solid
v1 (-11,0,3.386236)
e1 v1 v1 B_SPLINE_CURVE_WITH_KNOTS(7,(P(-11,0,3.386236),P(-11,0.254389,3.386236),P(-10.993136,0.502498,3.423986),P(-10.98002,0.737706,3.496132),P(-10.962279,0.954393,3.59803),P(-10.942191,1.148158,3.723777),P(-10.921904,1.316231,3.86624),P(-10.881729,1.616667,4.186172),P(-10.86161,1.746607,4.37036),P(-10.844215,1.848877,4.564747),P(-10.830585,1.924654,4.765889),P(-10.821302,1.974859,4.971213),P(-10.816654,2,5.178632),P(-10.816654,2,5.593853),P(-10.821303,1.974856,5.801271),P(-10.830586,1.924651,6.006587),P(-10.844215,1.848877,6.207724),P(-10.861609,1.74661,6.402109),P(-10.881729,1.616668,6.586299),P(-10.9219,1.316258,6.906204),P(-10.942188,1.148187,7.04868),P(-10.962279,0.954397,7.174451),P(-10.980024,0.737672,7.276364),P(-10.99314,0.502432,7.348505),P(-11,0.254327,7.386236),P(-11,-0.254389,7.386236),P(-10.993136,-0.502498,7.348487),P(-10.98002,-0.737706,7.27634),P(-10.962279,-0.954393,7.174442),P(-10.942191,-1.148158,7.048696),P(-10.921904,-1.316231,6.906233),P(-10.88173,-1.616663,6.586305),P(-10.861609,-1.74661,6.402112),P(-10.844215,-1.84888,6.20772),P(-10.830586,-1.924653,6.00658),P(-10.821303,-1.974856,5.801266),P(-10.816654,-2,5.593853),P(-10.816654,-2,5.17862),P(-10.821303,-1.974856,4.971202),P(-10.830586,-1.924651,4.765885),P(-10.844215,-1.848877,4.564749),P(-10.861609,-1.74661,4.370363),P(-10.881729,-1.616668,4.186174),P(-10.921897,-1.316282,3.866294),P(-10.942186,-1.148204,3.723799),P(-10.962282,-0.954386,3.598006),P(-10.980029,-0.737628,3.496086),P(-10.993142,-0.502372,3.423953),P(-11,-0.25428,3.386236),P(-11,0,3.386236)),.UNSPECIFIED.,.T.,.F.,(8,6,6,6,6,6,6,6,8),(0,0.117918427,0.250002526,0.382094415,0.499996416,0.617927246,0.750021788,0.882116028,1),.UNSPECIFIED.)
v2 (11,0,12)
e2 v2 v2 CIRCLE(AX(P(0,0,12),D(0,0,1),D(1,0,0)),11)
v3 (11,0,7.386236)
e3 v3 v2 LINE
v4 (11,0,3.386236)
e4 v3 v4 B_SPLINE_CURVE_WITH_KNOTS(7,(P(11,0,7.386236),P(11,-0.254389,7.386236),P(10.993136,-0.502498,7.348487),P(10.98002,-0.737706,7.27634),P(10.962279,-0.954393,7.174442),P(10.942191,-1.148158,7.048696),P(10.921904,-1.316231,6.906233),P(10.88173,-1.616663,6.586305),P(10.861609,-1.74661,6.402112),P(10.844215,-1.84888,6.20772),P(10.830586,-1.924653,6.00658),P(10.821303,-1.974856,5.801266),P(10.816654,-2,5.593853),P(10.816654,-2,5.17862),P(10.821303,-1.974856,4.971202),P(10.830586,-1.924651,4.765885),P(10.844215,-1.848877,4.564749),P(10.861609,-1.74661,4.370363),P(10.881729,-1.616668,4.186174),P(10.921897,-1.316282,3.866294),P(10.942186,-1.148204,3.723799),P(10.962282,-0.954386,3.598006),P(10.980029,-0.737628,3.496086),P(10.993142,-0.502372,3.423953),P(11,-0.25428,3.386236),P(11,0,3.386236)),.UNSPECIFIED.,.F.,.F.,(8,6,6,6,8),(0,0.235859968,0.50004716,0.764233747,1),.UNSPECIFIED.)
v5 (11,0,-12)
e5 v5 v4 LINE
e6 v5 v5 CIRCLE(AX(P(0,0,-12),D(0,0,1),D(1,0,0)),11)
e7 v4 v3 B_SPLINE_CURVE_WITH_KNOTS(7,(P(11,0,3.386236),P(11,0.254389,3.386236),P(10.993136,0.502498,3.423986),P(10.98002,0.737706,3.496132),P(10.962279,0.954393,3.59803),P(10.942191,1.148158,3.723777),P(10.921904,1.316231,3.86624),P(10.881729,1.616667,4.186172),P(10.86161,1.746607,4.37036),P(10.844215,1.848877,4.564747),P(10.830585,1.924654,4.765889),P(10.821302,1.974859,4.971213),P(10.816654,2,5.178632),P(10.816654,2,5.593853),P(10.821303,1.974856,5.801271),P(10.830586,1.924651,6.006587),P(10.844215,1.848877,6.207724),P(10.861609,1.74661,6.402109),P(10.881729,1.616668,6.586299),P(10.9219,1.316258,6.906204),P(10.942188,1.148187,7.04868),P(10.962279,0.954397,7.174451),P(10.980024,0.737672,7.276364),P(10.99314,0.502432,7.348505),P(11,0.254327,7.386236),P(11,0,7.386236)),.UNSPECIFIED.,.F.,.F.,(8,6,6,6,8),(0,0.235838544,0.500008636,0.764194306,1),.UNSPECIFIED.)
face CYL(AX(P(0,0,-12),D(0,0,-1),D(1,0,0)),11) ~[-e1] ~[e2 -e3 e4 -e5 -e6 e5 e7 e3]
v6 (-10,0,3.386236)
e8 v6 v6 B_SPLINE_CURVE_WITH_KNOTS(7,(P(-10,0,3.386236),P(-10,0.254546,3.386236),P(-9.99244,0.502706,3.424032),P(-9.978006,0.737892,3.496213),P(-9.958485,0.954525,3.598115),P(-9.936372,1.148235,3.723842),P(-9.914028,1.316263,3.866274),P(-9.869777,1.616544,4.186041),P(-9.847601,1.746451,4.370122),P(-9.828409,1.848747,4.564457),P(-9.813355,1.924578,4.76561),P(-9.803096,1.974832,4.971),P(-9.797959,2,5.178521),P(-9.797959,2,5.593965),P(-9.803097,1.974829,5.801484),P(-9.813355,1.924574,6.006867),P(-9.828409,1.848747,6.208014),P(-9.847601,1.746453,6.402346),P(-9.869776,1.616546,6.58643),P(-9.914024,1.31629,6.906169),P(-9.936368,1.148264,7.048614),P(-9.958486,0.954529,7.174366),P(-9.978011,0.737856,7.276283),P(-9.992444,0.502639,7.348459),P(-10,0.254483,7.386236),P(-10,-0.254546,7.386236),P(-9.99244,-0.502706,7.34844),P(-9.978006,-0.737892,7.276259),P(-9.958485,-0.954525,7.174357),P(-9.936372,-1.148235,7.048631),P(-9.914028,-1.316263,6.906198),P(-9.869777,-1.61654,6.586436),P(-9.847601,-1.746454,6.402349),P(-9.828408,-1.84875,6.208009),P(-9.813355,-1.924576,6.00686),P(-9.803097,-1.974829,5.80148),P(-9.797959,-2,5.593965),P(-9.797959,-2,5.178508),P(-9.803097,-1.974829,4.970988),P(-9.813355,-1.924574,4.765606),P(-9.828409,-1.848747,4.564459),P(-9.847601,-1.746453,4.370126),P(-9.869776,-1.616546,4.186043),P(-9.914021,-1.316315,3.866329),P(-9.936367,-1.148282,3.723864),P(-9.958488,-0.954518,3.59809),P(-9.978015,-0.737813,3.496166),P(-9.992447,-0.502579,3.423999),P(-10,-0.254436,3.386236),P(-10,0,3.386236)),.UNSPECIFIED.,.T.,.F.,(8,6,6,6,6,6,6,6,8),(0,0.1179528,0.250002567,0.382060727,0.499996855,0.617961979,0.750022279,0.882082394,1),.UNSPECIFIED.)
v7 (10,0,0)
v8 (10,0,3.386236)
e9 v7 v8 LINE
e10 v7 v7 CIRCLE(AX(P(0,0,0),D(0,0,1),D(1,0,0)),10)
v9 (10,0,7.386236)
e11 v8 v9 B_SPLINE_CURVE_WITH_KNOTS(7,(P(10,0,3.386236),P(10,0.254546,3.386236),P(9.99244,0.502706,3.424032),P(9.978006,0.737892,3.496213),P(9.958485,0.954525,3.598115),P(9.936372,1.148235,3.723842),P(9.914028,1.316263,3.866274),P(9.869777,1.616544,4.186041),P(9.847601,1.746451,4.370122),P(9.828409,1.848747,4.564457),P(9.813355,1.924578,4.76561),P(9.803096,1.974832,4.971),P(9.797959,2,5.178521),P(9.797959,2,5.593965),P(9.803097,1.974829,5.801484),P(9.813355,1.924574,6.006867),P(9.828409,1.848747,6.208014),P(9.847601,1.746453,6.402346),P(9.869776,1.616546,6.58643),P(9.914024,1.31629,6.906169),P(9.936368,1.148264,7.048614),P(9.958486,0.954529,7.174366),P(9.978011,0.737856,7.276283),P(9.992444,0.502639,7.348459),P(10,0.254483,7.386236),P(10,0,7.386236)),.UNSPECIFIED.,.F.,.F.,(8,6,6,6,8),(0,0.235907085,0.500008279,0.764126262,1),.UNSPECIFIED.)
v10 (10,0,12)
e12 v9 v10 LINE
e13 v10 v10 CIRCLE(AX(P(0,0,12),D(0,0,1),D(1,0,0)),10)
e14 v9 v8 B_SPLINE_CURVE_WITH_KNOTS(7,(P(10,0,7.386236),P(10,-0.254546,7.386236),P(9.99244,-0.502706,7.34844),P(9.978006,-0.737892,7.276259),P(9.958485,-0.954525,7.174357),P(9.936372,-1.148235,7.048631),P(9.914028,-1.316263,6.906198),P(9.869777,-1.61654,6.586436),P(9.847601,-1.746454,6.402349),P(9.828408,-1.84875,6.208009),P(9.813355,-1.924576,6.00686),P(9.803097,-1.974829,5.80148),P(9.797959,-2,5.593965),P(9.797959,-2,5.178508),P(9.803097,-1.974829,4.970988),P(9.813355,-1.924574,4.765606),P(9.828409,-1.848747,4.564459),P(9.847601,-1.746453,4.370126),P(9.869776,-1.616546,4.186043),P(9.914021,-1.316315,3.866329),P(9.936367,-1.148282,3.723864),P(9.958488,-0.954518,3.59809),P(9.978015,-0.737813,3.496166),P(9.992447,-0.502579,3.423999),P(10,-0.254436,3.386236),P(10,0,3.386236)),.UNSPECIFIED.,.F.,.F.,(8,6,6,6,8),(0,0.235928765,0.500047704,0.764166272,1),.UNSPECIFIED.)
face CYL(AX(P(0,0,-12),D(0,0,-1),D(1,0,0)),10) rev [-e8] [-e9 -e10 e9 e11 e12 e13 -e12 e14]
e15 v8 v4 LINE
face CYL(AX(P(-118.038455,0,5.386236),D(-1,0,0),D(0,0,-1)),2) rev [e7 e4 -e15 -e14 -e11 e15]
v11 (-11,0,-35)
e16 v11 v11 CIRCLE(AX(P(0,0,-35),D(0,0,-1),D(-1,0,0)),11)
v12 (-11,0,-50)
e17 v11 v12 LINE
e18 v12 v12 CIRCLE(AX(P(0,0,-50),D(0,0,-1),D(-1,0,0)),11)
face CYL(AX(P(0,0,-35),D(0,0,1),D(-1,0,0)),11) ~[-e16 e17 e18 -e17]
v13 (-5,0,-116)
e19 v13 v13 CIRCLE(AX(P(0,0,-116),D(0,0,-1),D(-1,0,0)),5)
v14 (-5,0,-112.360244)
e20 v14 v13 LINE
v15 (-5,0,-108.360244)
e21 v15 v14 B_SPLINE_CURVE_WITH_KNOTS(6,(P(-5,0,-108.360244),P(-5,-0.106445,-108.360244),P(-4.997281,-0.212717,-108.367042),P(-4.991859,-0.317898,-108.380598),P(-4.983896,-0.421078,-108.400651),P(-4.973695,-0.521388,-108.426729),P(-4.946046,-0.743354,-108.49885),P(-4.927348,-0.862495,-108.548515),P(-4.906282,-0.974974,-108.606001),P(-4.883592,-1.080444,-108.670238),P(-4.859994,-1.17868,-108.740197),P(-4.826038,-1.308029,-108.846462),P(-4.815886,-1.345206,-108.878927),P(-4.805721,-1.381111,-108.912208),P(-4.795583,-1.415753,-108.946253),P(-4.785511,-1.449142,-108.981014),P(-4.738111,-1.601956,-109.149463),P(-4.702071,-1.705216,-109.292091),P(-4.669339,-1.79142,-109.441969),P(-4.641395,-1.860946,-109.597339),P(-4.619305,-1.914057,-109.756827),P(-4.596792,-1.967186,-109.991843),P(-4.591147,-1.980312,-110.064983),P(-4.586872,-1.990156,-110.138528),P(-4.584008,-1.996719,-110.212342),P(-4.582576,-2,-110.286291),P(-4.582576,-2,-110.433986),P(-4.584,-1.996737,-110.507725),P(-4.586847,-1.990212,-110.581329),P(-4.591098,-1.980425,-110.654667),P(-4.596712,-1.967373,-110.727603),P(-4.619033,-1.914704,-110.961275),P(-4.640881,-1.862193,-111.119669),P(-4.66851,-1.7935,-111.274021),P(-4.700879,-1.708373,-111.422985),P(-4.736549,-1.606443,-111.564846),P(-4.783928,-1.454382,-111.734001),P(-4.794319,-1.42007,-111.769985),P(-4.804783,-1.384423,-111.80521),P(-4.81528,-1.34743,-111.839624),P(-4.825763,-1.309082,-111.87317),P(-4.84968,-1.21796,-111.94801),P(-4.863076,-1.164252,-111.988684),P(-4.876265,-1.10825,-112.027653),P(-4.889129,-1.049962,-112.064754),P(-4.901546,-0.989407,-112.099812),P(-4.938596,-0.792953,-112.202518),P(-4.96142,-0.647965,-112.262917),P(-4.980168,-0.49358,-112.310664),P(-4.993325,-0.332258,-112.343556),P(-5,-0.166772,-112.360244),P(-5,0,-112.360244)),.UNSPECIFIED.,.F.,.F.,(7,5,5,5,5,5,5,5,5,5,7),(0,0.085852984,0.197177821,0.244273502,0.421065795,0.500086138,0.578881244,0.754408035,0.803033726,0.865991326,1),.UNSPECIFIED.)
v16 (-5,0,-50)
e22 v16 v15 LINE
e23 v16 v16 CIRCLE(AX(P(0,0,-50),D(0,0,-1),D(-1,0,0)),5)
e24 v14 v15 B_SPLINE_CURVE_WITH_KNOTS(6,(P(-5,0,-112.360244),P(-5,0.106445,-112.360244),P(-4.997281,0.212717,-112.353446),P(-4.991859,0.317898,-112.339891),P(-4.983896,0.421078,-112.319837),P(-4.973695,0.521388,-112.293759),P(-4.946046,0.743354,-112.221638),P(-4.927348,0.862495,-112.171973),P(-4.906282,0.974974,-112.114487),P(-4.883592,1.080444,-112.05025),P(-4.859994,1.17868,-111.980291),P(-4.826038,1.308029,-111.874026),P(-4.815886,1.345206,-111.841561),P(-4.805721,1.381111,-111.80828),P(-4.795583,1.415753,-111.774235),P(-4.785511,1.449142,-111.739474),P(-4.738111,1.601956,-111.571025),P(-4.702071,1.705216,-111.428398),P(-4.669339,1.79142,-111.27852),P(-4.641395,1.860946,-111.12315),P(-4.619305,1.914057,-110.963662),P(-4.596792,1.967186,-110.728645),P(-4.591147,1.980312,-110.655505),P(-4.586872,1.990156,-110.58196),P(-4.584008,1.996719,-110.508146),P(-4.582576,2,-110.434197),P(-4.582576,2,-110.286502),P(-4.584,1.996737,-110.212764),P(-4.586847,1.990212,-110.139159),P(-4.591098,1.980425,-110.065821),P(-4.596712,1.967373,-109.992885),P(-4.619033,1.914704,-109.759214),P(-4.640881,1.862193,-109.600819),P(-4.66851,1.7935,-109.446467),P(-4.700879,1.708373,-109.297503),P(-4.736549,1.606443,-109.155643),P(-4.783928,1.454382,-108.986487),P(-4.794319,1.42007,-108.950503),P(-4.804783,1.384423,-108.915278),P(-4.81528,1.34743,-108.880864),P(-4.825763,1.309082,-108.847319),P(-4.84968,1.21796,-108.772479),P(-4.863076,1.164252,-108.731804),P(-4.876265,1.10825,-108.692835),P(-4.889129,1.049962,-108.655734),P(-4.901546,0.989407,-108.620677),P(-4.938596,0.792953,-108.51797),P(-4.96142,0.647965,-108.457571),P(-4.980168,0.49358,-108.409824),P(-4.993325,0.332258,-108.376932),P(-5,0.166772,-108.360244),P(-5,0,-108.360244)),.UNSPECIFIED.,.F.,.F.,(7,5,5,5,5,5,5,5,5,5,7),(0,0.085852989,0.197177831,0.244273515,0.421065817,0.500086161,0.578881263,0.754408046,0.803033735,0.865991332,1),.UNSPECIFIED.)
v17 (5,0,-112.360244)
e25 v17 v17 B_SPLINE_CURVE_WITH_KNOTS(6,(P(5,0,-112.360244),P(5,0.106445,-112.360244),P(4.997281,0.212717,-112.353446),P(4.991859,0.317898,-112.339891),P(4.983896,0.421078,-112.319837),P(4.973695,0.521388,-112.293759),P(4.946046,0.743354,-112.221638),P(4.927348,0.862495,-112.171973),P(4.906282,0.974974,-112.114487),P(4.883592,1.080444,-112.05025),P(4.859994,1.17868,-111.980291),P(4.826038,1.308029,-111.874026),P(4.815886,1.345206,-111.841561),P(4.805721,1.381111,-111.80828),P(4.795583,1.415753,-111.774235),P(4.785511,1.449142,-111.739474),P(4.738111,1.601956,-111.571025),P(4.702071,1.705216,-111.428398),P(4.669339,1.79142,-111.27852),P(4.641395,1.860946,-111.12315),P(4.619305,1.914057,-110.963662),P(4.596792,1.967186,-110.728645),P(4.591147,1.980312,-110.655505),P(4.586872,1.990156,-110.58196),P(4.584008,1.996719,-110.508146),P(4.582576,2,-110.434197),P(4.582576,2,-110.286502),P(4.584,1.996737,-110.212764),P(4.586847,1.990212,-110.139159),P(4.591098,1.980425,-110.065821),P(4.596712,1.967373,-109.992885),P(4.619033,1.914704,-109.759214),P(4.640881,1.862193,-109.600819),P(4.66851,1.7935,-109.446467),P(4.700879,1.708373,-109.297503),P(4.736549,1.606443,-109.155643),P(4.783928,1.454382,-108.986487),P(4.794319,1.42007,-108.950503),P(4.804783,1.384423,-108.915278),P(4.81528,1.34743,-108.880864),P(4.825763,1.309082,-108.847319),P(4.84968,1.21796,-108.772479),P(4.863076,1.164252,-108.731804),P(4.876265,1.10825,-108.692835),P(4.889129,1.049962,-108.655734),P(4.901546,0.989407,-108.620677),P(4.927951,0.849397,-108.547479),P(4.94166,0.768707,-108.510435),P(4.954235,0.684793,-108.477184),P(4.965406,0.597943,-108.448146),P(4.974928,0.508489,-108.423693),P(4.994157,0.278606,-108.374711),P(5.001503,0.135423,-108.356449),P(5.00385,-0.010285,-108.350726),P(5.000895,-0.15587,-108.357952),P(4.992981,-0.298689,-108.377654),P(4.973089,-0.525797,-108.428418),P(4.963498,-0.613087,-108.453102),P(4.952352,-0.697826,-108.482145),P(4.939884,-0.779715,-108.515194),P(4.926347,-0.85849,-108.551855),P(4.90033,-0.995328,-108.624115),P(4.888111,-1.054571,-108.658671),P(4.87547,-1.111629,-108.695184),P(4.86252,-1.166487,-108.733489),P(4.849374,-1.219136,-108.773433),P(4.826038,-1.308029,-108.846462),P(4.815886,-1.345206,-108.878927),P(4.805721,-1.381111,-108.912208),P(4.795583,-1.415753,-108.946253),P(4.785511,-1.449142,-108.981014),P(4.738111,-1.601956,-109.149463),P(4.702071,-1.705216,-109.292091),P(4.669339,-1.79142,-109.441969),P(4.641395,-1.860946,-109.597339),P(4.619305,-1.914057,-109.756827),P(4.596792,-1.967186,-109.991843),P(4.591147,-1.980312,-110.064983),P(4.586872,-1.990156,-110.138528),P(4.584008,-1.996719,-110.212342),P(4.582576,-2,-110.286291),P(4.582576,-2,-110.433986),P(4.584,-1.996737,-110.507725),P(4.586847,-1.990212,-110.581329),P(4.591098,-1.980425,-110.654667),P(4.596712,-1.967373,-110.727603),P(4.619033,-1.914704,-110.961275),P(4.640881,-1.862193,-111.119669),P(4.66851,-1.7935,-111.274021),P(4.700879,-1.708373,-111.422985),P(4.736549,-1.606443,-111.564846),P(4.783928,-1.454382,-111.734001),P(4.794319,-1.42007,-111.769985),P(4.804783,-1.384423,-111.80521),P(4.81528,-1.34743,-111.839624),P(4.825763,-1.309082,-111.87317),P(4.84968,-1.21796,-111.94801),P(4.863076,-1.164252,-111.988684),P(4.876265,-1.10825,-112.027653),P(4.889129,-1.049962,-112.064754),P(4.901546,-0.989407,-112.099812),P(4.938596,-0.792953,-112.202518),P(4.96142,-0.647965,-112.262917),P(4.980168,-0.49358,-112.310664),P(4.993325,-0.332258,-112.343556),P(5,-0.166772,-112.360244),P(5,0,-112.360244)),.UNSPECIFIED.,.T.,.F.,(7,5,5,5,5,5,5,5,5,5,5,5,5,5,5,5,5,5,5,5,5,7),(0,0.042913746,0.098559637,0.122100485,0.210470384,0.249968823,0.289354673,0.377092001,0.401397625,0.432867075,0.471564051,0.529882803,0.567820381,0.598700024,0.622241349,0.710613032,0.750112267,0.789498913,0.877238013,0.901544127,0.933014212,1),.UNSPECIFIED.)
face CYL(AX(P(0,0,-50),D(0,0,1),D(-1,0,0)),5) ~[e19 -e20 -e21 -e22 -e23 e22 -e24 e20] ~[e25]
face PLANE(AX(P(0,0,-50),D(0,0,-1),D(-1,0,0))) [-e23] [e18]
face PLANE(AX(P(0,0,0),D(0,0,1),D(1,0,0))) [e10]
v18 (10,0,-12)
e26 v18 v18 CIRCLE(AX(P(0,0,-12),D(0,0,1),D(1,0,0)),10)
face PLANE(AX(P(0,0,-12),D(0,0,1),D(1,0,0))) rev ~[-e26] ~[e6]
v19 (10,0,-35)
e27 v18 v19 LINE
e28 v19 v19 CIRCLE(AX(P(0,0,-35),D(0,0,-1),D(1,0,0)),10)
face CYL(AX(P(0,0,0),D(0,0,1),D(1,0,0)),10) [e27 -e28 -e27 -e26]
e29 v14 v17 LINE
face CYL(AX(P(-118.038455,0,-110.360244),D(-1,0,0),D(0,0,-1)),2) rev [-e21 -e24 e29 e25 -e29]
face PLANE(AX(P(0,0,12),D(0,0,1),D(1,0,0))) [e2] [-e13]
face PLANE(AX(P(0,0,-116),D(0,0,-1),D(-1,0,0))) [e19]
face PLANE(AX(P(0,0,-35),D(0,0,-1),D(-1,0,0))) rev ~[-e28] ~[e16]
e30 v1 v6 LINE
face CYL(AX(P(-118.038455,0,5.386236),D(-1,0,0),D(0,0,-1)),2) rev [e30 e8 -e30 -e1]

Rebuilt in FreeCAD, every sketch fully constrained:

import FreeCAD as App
import Part
import Sketcher

V = App.Vector

doc = App.newDocument("Part")
body = doc.addObject("PartDesign::Body", "Body")

# Sketch on XY plane
sketch1 = doc.addObject("Sketcher::SketchObject", "Sketch")
body.addObject(sketch1)
sketch1.AttachmentSupport = (doc.XY_Plane, [""])
sketch1.MapMode = "FlatFace"
sketch1.addGeometry(Part.Circle(V(0, 0, 0), V(0, 0, 1), 10), False)
sketch1.addConstraint(Sketcher.Constraint("Coincident", 0, 3, -1, 1))
sketch1.addConstraint(Sketcher.Constraint("Diameter", 0, 20.0))
pad1 = doc.addObject("PartDesign::Pad", "Pad")
body.addObject(pad1)
pad1.Profile = sketch1
pad1.Length = 50
pad1.Reversed = True

# Sketch on XY plane
sketch2 = doc.addObject("Sketcher::SketchObject", "Sketch001")
body.addObject(sketch2)
sketch2.AttachmentSupport = (doc.XY_Plane, [""])
sketch2.MapMode = "FlatFace"
sketch2.AttachmentOffset = App.Placement(V(0, 0, -35), App.Rotation())
sketch2.addGeometry(Part.Circle(V(0, 0, 0), V(0, 0, 1), 11), False)
sketch2.addGeometry(Part.Circle(V(0, 0, 0), V(0, 0, 1), 10), False)
sketch2.addConstraint(Sketcher.Constraint("Coincident", 0, 3, -1, 1))
sketch2.addConstraint(Sketcher.Constraint("Coincident", 1, 3, -1, 1))
sketch2.addConstraint(Sketcher.Constraint("Diameter", 0, 22.0))
sketch2.addConstraint(Sketcher.Constraint("Diameter", 1, 20.0))
pad2 = doc.addObject("PartDesign::Pad", "Pad001")
body.addObject(pad2)
pad2.Profile = sketch2
pad2.Length = 15
pad2.Reversed = True

# Sketch on XY plane
sketch3 = doc.addObject("Sketcher::SketchObject", "Sketch002")
body.addObject(sketch3)
sketch3.AttachmentSupport = (doc.XY_Plane, [""])
sketch3.MapMode = "FlatFace"
sketch3.AttachmentOffset = App.Placement(V(0, 0, -50), App.Rotation())
sketch3.addGeometry(Part.Circle(V(0, 0, 0), V(0, 0, 1), 5), False)
sketch3.addConstraint(Sketcher.Constraint("Coincident", 0, 3, -1, 1))
sketch3.addConstraint(Sketcher.Constraint("Diameter", 0, 10.0))
pad3 = doc.addObject("PartDesign::Pad", "Pad002")
body.addObject(pad3)
pad3.Profile = sketch3
pad3.Length = 66
pad3.Reversed = True

# Sketch on YZ plane
sketch4 = doc.addObject("Sketcher::SketchObject", "Sketch003")
body.addObject(sketch4)
sketch4.AttachmentSupport = (doc.YZ_Plane, [""])
sketch4.MapMode = "FlatFace"
sketch4.addGeometry(Part.Circle(V(0, -110.4, 0), V(0, 0, 1), 2), False)
sketch4.addConstraint(Sketcher.Constraint("PointOnObject", 0, 3, -2))
sketch4.addConstraint(Sketcher.Constraint("Diameter", 0, 4.0))
sketch4.addConstraint(Sketcher.Constraint("DistanceY", 0, 3, -1, 1, 110.360244))
pocket1 = doc.addObject("PartDesign::Pocket", "Pocket")
body.addObject(pocket1)
pocket1.Profile = sketch4
pocket1.Type = "ThroughAll"
pocket1.Midplane = True

# Sketch on XY plane
sketch5 = doc.addObject("Sketcher::SketchObject", "Sketch004")
body.addObject(sketch5)
sketch5.AttachmentSupport = (doc.XY_Plane, [""])
sketch5.MapMode = "FlatFace"
sketch5.addGeometry(Part.Circle(V(0, 0, 0), V(0, 0, 1), 11), False)
sketch5.addGeometry(Part.Circle(V(0, 0, 0), V(0, 0, 1), 10), False)
sketch5.addConstraint(Sketcher.Constraint("Coincident", 0, 3, -1, 1))
sketch5.addConstraint(Sketcher.Constraint("Coincident", 1, 3, -1, 1))
sketch5.addConstraint(Sketcher.Constraint("Diameter", 0, 22.0))
sketch5.addConstraint(Sketcher.Constraint("Diameter", 1, 20.0))
pad4 = doc.addObject("PartDesign::Pad", "Pad003")
body.addObject(pad4)
pad4.Profile = sketch5
pad4.Type = "TwoLengths"
pad4.Length = 12
pad4.Length2 = 12

# Sketch on YZ plane
sketch6 = doc.addObject("Sketcher::SketchObject", "Sketch005")
body.addObject(sketch6)
sketch6.AttachmentSupport = (doc.YZ_Plane, [""])
sketch6.MapMode = "FlatFace"
sketch6.addGeometry(Part.Circle(V(0, 5.4, 0), V(0, 0, 1), 2), False)
sketch6.addConstraint(Sketcher.Constraint("PointOnObject", 0, 3, -2))
sketch6.addConstraint(Sketcher.Constraint("Diameter", 0, 4.0))
sketch6.addConstraint(Sketcher.Constraint("DistanceY", -1, 1, 0, 3, 5.386236))
pocket2 = doc.addObject("PartDesign::Pocket", "Pocket001")
body.addObject(pocket2)
pocket2.Profile = sketch6
pocket2.Type = "ThroughAll"
pocket2.Midplane = True

doc.recompute()
